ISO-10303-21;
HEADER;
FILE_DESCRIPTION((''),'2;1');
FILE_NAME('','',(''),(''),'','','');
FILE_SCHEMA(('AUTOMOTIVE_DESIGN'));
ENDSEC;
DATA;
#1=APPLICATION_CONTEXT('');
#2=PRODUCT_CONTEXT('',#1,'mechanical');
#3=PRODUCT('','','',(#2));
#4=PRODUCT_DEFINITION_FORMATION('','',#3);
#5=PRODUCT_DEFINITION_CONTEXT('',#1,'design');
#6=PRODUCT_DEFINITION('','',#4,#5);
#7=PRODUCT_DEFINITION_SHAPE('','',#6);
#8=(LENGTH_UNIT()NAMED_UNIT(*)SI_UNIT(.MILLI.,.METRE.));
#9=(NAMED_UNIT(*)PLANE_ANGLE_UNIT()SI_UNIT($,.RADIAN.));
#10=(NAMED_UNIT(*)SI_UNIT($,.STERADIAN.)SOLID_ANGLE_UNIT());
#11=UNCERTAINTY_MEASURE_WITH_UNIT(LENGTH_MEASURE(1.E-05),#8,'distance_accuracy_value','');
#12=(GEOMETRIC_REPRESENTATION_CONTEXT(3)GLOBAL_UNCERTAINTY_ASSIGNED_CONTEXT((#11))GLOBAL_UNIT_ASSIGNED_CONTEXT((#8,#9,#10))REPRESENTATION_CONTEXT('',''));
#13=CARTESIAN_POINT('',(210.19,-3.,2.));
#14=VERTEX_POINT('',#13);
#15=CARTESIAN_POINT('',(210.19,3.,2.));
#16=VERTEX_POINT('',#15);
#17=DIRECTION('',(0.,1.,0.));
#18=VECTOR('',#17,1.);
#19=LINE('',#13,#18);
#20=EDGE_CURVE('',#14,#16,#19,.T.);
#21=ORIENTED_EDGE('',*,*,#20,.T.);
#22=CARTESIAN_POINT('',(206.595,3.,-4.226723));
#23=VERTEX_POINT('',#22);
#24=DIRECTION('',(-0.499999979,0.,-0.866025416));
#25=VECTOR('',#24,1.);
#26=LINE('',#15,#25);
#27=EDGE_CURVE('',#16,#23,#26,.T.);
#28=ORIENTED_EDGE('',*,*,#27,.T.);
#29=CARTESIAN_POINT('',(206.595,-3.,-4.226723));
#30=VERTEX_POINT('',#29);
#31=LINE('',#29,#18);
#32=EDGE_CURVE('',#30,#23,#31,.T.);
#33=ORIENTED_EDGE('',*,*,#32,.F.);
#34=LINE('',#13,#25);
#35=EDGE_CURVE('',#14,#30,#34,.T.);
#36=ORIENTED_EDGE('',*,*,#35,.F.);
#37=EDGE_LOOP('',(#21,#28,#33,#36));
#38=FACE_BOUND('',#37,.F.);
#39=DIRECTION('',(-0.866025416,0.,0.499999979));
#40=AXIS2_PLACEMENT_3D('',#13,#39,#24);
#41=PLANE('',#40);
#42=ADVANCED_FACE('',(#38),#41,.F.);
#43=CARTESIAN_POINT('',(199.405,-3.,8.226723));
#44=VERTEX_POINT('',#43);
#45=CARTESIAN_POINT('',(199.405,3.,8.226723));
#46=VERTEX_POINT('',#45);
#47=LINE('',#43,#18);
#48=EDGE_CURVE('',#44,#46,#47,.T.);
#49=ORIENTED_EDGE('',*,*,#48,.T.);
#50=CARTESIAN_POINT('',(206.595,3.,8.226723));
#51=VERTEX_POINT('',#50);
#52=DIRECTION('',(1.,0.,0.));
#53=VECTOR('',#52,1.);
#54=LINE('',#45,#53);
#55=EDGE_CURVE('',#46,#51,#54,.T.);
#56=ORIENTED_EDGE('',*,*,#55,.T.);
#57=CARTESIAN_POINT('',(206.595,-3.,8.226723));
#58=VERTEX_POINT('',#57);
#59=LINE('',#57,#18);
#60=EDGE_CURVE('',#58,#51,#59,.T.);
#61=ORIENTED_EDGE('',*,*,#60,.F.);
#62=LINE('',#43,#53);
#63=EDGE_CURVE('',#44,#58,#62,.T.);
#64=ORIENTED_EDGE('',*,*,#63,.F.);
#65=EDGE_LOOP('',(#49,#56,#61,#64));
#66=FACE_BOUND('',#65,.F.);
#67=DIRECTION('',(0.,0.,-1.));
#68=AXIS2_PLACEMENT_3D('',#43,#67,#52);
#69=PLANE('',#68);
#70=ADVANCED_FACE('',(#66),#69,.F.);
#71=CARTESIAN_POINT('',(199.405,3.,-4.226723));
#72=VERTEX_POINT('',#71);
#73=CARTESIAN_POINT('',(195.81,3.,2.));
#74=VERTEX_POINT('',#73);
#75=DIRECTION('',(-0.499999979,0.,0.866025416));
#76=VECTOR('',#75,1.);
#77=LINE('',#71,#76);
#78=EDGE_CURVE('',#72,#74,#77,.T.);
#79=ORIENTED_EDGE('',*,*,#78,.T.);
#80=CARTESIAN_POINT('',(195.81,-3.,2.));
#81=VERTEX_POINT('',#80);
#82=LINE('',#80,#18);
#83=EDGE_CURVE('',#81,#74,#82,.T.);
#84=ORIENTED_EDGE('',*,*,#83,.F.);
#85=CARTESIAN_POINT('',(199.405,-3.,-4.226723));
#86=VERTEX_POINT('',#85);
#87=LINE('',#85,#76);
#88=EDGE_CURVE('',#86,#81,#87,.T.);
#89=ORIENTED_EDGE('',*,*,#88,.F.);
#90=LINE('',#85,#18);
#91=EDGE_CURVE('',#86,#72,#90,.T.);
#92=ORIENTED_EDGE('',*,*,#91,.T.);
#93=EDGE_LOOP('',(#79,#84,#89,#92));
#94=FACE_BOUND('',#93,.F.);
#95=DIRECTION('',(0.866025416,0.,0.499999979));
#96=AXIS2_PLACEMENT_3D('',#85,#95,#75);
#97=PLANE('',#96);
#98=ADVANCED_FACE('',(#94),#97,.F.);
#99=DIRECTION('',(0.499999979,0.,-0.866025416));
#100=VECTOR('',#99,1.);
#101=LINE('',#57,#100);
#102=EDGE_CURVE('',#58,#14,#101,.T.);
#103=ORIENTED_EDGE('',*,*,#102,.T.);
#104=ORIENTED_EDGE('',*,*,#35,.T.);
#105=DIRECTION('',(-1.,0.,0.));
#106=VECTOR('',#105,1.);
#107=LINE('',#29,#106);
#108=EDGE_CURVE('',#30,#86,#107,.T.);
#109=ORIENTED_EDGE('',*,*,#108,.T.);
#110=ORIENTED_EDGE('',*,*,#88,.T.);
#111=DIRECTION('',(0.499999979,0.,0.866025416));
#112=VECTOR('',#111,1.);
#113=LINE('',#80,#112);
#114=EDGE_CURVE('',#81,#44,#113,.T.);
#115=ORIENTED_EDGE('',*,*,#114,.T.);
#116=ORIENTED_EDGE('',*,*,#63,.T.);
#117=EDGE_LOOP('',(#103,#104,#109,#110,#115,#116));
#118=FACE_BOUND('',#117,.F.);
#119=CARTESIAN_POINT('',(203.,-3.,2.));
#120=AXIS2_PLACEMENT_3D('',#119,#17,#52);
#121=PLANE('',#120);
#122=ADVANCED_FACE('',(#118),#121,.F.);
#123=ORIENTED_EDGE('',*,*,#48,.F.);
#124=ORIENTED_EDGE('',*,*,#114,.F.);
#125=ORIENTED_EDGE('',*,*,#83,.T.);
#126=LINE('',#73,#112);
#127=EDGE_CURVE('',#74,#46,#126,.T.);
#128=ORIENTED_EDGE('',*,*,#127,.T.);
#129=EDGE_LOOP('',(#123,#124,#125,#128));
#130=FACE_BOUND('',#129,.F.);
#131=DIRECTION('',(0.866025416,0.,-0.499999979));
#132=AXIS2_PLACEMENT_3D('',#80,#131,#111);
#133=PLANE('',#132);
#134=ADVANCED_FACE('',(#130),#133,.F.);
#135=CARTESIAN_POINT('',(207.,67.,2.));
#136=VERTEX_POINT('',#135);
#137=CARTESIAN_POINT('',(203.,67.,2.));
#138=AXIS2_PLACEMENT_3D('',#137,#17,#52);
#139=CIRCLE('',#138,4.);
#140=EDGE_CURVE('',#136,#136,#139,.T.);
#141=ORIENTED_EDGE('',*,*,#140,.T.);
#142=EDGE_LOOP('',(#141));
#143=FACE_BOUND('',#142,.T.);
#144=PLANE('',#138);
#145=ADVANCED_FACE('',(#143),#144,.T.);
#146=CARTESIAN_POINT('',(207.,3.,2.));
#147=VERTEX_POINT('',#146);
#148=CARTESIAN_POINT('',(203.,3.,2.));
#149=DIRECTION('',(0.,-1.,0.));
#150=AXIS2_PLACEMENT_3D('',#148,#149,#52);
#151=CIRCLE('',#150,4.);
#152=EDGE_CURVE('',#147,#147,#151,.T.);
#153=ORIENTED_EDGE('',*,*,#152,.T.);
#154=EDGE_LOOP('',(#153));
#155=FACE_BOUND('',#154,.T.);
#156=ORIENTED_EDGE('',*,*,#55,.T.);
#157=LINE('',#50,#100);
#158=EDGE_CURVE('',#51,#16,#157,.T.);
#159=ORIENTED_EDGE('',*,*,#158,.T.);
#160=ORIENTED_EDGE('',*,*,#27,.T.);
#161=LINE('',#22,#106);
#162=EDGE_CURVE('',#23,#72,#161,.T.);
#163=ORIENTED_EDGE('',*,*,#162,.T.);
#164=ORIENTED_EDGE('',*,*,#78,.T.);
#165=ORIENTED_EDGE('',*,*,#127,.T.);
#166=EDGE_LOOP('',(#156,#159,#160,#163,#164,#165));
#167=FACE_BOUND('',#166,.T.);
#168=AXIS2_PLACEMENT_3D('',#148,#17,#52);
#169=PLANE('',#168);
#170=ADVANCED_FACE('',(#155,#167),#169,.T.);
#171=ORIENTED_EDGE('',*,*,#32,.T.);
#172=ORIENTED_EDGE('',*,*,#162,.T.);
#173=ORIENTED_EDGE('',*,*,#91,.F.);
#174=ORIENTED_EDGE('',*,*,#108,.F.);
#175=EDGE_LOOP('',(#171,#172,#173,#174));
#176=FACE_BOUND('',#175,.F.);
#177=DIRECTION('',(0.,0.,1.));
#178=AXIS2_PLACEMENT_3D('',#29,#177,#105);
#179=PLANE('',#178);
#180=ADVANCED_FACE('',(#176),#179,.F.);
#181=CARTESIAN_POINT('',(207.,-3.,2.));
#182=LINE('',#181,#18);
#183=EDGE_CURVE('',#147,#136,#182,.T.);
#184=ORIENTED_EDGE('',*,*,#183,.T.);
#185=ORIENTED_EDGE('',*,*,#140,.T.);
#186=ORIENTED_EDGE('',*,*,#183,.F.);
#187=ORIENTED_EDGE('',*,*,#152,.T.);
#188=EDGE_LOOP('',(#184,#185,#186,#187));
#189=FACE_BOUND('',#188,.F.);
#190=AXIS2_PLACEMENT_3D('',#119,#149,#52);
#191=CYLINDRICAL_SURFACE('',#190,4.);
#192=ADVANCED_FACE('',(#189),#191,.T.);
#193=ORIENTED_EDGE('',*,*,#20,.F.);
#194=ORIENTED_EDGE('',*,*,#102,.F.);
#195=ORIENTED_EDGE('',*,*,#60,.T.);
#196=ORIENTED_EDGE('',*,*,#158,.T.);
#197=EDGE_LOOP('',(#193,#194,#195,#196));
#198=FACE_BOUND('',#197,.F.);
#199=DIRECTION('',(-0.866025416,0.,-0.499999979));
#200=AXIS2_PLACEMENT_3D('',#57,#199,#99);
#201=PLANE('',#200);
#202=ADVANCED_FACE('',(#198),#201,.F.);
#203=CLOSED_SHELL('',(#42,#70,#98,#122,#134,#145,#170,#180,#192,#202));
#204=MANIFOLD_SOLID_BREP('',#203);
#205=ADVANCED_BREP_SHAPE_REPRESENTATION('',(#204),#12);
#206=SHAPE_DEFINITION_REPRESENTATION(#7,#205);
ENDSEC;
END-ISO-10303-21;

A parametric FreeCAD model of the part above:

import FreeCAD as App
import Part
import Sketcher
from FreeCAD import Vector
Q = App.Units.Quantity

doc = App.newDocument("Part")
params = doc.addObject("Spreadsheet::Sheet", "Params")
for row, (alias, value) in enumerate([
    ("sketch1_diameter", "8 mm"),
    ("pad1_length", "70 mm"),
    ("sketch2_width", "7.19 mm"),
    ("sketch2_length", "7.19 mm"),
    ("pad2_length", "6 mm"),
], start=1):
    params.set(f"A{row}", alias)
    params.set(f"B{row}", "=" + value)
    params.setAlias(f"B{row}", alias)

body = doc.addObject("PartDesign::Body", "Body")

sketch1 = body.newObject("Sketcher::SketchObject", "Sketch")
sketch1.AttachmentSupport = (doc.getObject("XY_Plane"), [""])
sketch1.MapMode = "FlatFace"
sketch1.addGeometry(Part.Circle(Vector(0, 0, 0), Vector(0, 0, 1), 4), False)
sketch1.addConstraint(Sketcher.Constraint("Coincident", 0, 3, -1, 1))
sketch1.addConstraint(Sketcher.Constraint("Diameter", 0, Q("8 mm")))
sketch1.setExpression("Constraints[1]", "Params.sketch1_diameter")
pad1 = body.newObject("PartDesign::Pad", "Pad")
pad1.Profile = sketch1
pad1.setExpression("Length", "Params.pad1_length")
body2 = doc.addObject("PartDesign::Body", "Body001")

sketch2 = body2.newObject("Sketcher::SketchObject", "Sketch001")
sketch2.AttachmentSupport = (doc.getObject("XY_Plane001"), [""])
sketch2.MapMode = "FlatFace"
sketch2.addGeometry(Part.LineSegment(Vector(7.19, 0, 0), Vector(3.595, 6.226723, 0)), False)
sketch2.addGeometry(Part.LineSegment(Vector(3.595, 6.226723, 0), Vector(-3.595, 6.226723, 0)), False)
sketch2.addGeometry(Part.LineSegment(Vector(-3.595, 6.226723, 0), Vector(-7.19, 0, 0)), False)
sketch2.addGeometry(Part.LineSegment(Vector(-7.19, 0, 0), Vector(-3.595, -6.226723, 0)), False)
sketch2.addGeometry(Part.LineSegment(Vector(-3.595, -6.226723, 0), Vector(3.595, -6.226723, 0)), False)
sketch2.addGeometry(Part.LineSegment(Vector(3.595, -6.226723, 0), Vector(7.19, 0, 0)), False)
sketch2.addConstraint(Sketcher.Constraint("Coincident", 0, 2, 1, 1))
sketch2.addConstraint(Sketcher.Constraint("Coincident", 1, 2, 2, 1))
sketch2.addConstraint(Sketcher.Constraint("Coincident", 2, 2, 3, 1))
sketch2.addConstraint(Sketcher.Constraint("Coincident", 3, 2, 4, 1))
sketch2.addConstraint(Sketcher.Constraint("Coincident", 4, 2, 5, 1))
sketch2.addConstraint(Sketcher.Constraint("Coincident", 5, 2, 0, 1))
sketch2.addConstraint(Sketcher.Constraint("Horizontal", 1))
sketch2.addConstraint(Sketcher.Constraint("Horizontal", 4))
sketch2.addConstraint(Sketcher.Constraint("Symmetric", 0, 2, 3, 2, -1, 1))
sketch2.addConstraint(Sketcher.Constraint("Symmetric", 2, 2, 5, 2, -1, 1))
sketch2.addConstraint(Sketcher.Constraint("PointOnObject", 2, 2, -1))
sketch2.addConstraint(Sketcher.Constraint("Parallel", 2, 5))
sketch2.addConstraint(Sketcher.Constraint("Vertical", 1, 2, 3, 2))
sketch2.addConstraint(Sketcher.Constraint("Angle", 0, Q("119.999999 deg")))
sketch2.addConstraint(Sketcher.Constraint("DistanceX", 1, 2, 1, 1, Q("7.19 mm")))
sketch2.addConstraint(Sketcher.Constraint("Distance", 0, Q("7.19 mm")))
sketch2.setExpression("Constraints[14]", "Params.sketch2_width")
sketch2.setExpression("Constraints[15]", "Params.sketch2_length")
pad2 = body2.newObject("PartDesign::Pad", "Pad001")
pad2.Profile = sketch2
pad2.setExpression("Length", "Params.pad2_length")
doc.recompute()

boolean = body2.newObject("PartDesign::Boolean", "Boolean")
boolean.Type = "Fuse"
boolean.addObjects([body])
body3 = doc.addObject("PartDesign::Body", "Body002")
doc.recompute()

body2.Placement = App.Placement(Vector(203, -3, 2), App.Rotation(Vector(-1, 0, 0), 90))
boolean2 = body3.newObject("PartDesign::Boolean", "Boolean001")
boolean2.Type = "Fuse"
boolean2.addObjects([body2])

doc.recompute()
